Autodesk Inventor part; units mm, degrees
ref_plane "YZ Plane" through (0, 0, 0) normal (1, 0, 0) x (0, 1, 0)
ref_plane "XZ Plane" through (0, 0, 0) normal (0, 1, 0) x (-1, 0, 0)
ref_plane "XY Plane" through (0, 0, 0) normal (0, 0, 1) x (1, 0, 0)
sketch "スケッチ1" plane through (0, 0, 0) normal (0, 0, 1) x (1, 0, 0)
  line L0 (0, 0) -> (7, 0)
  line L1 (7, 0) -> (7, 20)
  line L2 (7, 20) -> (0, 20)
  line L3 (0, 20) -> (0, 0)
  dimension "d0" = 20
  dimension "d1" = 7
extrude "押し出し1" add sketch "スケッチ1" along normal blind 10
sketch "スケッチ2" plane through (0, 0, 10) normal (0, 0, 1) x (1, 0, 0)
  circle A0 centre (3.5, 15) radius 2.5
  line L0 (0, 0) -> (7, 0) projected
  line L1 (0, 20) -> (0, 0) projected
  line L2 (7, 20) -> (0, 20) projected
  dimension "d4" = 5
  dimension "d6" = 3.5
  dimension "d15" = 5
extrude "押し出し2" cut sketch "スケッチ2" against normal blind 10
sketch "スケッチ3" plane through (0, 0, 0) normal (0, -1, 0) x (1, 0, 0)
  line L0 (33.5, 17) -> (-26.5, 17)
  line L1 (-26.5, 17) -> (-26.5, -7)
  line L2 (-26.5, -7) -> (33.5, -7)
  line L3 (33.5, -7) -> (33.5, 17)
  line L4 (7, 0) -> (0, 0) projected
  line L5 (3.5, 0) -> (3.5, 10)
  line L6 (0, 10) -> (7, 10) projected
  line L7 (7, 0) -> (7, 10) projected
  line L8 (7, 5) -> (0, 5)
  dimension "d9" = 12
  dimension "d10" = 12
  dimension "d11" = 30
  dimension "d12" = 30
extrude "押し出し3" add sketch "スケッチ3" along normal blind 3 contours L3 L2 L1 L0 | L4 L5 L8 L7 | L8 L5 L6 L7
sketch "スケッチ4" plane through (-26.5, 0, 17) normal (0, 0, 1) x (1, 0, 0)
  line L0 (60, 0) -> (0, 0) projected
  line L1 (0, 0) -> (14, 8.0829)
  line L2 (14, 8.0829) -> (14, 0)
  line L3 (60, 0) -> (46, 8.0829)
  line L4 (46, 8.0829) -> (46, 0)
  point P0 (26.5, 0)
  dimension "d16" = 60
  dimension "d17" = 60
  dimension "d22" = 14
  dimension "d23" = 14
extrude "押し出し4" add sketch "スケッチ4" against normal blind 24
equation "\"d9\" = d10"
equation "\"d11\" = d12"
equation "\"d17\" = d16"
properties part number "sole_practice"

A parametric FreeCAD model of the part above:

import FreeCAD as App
import Part
import Sketcher
Q = App.Units.Quantity


def add_polygon(sketch, points):
    """Adds a closed chain of lines whose ends are joined by coincident constraints."""
    first, n = sketch.GeometryCount, len(points)
    for a, b in zip(points, points[1:] + points[:1]):
        sketch.addGeometry(Part.LineSegment(App.Vector(*a, 0), App.Vector(*b, 0)), False)
    for i in range(n):
        sketch.addConstraint(Sketcher.Constraint("Coincident", first + i, 2, first + (i + 1) % n, 1))

doc = App.newDocument("Part")
body = doc.addObject("PartDesign::Body", "Body")

# Sketch on XY plane
sketch1 = doc.addObject("Sketcher::SketchObject", "Sketch")
body.addObject(sketch1)
sketch1.AttachmentSupport = (doc.XY_Plane, [""])
sketch1.MapMode = "FlatFace"
add_polygon(sketch1, [(0, 20), (0, 0), (7, 0), (7, 20)])  # lines 0-3
sketch1.addConstraint(Sketcher.Constraint("Vertical", 0))
sketch1.addConstraint(Sketcher.Constraint("Horizontal", 1))
sketch1.addConstraint(Sketcher.Constraint("Vertical", 2))
sketch1.addConstraint(Sketcher.Constraint("Horizontal", 3))
sketch1.addConstraint(Sketcher.Constraint("Coincident", 0, 2, -1, 1))
sketch1.addConstraint(Sketcher.Constraint("DistanceX", 1, 1, 1, 2, Q("7 mm")))
sketch1.addConstraint(Sketcher.Constraint("DistanceY", 0, 2, 0, 1, Q("20 mm")))
pad1 = doc.addObject("PartDesign::Pad", "Pad")
body.addObject(pad1)
pad1.Profile = sketch1
pad1.Length = 10

# Sketch on XY plane
sketch2 = doc.addObject("Sketcher::SketchObject", "Sketch001")
body.addObject(sketch2)
sketch2.AttachmentSupport = (doc.XY_Plane, [""])
sketch2.MapMode = "FlatFace"
sketch2.AttachmentOffset = App.Placement(App.Vector(0, 0, 10), App.Rotation())
sketch2.addGeometry(Part.Circle(App.Vector(3.5, 15, 0), App.Vector(0, 0, 1), 2.5), False)
sketch2.addConstraint(Sketcher.Constraint("Diameter", 0, Q("5 mm")))
sketch2.addConstraint(Sketcher.Constraint("DistanceX", -1, 1, 0, 3, Q("3.5 mm")))
sketch2.addConstraint(Sketcher.Constraint("DistanceY", -1, 1, 0, 3, Q("15 mm")))
pocket1 = doc.addObject("PartDesign::Pocket", "Pocket")
body.addObject(pocket1)
pocket1.Profile = sketch2
pocket1.Length = 10

# Sketch on XZ plane
sketch3 = doc.addObject("Sketcher::SketchObject", "Sketch002")
body.addObject(sketch3)
sketch3.AttachmentSupport = (doc.XZ_Plane, [""])
sketch3.MapMode = "FlatFace"
add_polygon(sketch3, [(34, -7), (34, 17), (-26, 17), (-26, -7)])  # lines 0-3
sketch3.addConstraint(Sketcher.Constraint("Vertical", 0))
sketch3.addConstraint(Sketcher.Constraint("Horizontal", 1))
sketch3.addConstraint(Sketcher.Constraint("Vertical", 2))
sketch3.addConstraint(Sketcher.Constraint("Horizontal", 3))
sketch3.addConstraint(Sketcher.Constraint("DistanceX", 1, 2, 1, 1, Q("60 mm")))
sketch3.addConstraint(Sketcher.Constraint("DistanceY", 0, 1, 0, 2, Q("24 mm")))
sketch3.addConstraint(Sketcher.Constraint("DistanceY", -1, 1, 0, 2, Q("17 mm")))
sketch3.addConstraint(Sketcher.Constraint("DistanceX", -1, 1, 0, 2, Q("33.5 mm")))
pad2 = doc.addObject("PartDesign::Pad", "Pad001")
body.addObject(pad2)
pad2.Profile = sketch3
pad2.Length = 3

# Sketch on XY plane
sketch4 = doc.addObject("Sketcher::SketchObject", "Sketch003")
body.addObject(sketch4)
sketch4.AttachmentSupport = (doc.XY_Plane, [""])
sketch4.MapMode = "FlatFace"
sketch4.AttachmentOffset = App.Placement(App.Vector(0, 0, 17), App.Rotation())
add_polygon(sketch4, [(-26, 0), (-12, 0), (-12, 8)])  # lines 0-2
add_polygon(sketch4, [(20, 0), (34, 0), (20, 8)])  # lines 3-5
sketch4.addConstraint(Sketcher.Constraint("Horizontal", 0))
sketch4.addConstraint(Sketcher.Constraint("Vertical", 1))
sketch4.addConstraint(Sketcher.Constraint("Horizontal", 3))
sketch4.addConstraint(Sketcher.Constraint("Vertical", 5))
sketch4.addConstraint(Sketcher.Constraint("PointOnObject", 0, 2, -1))
sketch4.addConstraint(Sketcher.Constraint("PointOnObject", 3, 2, -1))
sketch4.addConstraint(Sketcher.Constraint("Horizontal", 1, 2, 4, 2))
sketch4.addConstraint(Sketcher.Constraint("Equal", 0, 3))
sketch4.addConstraint(Sketcher.Constraint("DistanceX", 0, 1, 0, 2, Q("14 mm")))
sketch4.addConstraint(Sketcher.Constraint("DistanceX", 2, 2, 3, 2, Q("60 mm")))
sketch4.addConstraint(Sketcher.Constraint("Angle", 2, Q("-150 deg")))
sketch4.addConstraint(Sketcher.Constraint("DistanceX", 0, 2, -1, 1, Q("12.5 mm")))
pad3 = doc.addObject("PartDesign::Pad", "Pad002")
body.addObject(pad3)
pad3.Profile = sketch4
pad3.Length = 24
pad3.Reversed = True

doc.recompute()
